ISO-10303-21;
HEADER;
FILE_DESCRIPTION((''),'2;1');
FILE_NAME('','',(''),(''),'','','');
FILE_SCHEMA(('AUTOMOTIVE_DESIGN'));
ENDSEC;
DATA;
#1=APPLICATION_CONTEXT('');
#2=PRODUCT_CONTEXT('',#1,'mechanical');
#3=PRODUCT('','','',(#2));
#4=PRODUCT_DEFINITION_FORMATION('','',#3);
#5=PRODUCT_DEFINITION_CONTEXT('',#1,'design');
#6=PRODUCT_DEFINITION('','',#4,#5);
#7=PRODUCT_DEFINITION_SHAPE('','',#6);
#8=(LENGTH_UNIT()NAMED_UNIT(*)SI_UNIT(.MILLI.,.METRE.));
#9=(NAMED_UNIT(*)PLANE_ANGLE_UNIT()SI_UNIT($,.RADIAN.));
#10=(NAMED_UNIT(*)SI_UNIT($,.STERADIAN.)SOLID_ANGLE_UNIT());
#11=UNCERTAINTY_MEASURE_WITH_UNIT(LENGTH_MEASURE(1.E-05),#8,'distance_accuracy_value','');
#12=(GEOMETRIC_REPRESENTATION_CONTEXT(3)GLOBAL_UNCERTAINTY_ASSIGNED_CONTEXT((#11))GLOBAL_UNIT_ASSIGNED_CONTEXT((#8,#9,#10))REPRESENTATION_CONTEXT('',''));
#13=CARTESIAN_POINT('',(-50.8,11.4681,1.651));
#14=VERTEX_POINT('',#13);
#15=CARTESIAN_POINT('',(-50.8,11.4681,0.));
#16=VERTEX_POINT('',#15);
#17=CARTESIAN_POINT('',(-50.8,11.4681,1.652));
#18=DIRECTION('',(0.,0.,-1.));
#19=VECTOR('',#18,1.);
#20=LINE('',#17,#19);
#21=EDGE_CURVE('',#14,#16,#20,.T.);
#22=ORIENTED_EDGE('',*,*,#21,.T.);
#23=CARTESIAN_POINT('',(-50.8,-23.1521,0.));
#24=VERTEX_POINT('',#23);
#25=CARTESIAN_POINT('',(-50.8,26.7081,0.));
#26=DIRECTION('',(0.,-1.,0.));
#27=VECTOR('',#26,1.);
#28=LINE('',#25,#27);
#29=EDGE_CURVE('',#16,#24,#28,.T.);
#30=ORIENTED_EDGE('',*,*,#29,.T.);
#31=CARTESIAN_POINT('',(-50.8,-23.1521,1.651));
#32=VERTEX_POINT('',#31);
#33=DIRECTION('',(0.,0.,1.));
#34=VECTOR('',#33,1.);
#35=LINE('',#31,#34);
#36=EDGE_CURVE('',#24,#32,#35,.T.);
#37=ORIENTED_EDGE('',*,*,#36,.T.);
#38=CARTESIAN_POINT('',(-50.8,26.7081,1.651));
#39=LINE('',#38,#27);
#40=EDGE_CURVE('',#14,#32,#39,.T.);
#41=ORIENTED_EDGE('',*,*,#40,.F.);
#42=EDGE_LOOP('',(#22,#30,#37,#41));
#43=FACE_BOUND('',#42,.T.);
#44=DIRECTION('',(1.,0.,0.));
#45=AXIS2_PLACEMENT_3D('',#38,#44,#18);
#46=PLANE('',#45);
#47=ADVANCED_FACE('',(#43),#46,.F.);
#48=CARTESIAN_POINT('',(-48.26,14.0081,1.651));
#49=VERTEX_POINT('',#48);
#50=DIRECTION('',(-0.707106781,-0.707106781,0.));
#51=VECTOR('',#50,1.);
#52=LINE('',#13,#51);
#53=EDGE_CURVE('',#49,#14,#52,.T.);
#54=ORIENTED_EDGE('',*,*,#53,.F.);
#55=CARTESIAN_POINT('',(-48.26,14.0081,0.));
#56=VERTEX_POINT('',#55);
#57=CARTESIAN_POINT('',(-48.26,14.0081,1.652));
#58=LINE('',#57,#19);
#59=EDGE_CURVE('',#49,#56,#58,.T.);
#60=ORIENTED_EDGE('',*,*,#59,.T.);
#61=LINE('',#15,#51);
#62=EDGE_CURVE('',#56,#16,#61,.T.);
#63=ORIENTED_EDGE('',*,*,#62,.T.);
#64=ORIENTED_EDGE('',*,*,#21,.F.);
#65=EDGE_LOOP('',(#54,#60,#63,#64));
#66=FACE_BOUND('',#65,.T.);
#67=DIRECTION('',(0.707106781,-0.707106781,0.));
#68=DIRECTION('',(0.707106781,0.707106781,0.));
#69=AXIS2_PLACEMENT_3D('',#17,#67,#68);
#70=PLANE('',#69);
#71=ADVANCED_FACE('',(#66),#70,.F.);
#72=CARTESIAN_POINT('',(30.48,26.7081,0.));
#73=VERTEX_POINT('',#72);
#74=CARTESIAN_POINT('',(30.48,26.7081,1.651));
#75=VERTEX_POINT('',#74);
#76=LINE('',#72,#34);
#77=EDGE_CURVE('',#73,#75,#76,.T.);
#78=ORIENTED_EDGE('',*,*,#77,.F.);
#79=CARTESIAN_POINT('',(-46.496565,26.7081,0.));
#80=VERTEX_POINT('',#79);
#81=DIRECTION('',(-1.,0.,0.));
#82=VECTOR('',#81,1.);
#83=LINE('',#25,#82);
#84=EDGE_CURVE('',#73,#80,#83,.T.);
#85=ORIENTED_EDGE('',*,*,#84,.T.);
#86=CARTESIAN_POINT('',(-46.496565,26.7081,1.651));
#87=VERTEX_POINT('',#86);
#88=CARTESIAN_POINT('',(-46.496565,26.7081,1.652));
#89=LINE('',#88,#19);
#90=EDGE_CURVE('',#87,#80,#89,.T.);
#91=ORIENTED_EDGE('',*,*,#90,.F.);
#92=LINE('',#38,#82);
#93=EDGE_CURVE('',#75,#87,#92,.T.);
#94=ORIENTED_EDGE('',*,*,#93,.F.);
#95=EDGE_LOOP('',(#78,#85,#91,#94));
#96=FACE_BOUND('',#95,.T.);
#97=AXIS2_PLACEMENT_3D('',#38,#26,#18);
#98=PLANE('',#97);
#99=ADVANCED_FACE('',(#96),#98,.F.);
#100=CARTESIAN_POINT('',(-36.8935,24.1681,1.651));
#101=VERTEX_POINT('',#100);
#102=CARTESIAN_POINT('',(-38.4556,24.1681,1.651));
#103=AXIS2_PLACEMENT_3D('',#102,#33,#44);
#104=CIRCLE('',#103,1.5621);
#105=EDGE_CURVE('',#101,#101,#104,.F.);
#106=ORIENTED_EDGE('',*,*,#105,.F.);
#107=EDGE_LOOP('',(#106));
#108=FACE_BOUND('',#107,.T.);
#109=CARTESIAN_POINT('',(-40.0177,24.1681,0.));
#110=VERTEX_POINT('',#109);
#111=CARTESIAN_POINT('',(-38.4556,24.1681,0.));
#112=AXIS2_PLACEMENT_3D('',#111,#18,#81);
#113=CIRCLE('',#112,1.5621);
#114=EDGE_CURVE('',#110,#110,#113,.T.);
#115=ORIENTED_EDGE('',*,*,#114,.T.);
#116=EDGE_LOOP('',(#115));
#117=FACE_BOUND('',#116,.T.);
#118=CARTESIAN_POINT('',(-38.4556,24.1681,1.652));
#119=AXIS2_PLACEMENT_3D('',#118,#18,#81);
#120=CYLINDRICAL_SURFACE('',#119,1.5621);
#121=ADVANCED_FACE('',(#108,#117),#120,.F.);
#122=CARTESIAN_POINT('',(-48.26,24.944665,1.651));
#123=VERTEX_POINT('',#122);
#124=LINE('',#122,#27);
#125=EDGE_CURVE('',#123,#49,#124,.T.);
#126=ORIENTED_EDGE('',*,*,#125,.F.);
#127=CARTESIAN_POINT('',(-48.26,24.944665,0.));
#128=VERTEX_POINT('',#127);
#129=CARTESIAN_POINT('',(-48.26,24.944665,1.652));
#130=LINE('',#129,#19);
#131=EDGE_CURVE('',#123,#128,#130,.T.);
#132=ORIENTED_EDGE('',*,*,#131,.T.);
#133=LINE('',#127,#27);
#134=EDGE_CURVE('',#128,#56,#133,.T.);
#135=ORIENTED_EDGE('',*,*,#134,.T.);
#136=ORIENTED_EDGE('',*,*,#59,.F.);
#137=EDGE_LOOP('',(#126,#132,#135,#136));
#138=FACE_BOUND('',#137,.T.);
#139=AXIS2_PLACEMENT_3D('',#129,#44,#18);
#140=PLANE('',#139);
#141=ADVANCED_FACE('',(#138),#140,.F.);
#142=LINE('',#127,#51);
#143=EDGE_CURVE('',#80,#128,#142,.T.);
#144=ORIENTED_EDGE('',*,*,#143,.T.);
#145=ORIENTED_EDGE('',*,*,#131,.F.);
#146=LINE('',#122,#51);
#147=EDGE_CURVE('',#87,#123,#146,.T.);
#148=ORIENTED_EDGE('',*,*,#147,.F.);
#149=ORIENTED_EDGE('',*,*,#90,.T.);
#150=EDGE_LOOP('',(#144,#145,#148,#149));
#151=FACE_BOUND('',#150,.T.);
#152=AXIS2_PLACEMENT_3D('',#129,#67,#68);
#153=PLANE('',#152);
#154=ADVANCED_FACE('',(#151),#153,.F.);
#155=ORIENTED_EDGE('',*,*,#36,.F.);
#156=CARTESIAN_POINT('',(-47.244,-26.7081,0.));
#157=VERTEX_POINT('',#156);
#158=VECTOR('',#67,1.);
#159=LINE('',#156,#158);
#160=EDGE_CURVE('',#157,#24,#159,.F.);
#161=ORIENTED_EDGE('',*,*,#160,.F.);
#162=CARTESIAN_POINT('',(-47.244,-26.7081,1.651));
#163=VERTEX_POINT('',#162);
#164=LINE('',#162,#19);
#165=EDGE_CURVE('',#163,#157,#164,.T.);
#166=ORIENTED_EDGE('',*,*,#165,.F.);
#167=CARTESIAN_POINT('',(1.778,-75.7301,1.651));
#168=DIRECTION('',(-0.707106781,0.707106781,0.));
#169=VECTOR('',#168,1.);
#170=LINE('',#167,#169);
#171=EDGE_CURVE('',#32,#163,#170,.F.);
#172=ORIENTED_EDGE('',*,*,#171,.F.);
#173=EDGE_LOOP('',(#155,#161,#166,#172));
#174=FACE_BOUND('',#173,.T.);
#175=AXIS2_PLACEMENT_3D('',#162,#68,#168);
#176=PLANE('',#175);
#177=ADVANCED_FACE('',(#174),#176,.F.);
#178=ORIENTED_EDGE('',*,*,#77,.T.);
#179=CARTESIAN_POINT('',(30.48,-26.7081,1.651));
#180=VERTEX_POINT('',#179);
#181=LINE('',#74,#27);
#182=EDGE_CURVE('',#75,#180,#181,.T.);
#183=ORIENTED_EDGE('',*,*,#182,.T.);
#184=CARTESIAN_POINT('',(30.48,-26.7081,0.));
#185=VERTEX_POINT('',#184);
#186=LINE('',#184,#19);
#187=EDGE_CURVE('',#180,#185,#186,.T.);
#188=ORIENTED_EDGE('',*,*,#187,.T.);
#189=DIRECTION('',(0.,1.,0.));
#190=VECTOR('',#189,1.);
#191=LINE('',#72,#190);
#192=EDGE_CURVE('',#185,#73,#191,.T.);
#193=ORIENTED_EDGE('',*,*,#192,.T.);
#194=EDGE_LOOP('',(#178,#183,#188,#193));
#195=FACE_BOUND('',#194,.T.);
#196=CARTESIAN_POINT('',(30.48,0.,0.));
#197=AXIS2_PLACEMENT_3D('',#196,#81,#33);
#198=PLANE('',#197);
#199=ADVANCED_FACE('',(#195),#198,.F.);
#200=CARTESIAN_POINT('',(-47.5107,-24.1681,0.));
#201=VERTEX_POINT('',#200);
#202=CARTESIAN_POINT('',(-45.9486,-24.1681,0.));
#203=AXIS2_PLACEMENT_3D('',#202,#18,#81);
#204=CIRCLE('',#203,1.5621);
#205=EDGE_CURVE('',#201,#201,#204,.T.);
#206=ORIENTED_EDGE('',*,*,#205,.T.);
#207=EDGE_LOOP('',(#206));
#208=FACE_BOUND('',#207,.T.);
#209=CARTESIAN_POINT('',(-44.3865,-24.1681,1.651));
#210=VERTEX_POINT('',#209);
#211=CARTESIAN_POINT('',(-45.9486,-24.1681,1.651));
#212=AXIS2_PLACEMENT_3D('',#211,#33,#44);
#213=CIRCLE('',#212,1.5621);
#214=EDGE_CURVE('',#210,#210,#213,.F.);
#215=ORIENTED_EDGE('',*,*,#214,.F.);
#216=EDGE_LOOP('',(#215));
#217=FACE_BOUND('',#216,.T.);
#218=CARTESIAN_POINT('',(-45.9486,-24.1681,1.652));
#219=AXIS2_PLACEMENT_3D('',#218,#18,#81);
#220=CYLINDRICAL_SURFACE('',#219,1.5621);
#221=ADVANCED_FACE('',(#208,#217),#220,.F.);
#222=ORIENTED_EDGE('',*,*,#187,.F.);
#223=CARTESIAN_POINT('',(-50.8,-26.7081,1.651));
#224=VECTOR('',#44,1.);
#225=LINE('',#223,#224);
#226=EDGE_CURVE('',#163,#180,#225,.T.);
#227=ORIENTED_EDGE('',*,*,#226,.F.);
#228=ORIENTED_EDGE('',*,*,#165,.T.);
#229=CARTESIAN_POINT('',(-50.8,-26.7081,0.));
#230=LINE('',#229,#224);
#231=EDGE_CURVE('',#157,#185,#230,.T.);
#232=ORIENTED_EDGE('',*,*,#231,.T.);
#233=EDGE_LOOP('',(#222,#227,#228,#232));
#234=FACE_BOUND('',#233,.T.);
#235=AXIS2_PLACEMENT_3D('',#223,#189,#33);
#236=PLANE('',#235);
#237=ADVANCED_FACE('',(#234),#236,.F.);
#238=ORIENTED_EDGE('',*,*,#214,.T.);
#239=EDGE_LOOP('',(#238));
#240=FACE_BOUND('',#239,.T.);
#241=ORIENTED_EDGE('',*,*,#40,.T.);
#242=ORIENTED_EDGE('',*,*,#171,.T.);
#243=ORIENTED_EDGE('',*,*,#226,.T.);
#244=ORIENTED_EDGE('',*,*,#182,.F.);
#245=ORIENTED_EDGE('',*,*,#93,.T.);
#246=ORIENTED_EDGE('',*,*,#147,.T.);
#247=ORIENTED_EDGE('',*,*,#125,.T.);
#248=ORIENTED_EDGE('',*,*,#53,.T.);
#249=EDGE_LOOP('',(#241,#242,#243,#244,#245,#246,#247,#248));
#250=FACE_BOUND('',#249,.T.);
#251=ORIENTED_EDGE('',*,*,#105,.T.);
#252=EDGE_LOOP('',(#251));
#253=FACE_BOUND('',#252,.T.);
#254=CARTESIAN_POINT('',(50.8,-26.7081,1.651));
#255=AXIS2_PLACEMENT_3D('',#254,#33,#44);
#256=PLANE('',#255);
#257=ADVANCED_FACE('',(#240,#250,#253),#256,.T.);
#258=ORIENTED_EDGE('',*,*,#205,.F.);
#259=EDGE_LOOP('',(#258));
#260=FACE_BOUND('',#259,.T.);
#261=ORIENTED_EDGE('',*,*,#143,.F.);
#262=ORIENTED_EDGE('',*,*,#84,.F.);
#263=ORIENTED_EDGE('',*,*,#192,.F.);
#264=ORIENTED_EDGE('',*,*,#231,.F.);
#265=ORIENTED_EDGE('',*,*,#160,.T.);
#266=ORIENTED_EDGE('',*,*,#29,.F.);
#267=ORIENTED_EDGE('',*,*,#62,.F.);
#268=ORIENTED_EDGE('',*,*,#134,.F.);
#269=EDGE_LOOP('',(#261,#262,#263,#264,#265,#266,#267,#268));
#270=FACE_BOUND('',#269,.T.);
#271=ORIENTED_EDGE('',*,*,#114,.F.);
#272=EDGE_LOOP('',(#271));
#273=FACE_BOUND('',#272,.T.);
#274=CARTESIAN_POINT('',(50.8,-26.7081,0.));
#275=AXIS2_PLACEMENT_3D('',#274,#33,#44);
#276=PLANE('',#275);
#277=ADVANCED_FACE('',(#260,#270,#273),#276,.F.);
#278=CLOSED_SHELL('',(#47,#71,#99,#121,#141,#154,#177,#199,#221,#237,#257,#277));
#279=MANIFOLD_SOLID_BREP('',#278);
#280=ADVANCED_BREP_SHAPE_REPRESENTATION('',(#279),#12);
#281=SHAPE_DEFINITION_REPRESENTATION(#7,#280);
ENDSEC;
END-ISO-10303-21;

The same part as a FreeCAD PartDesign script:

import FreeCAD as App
import Part
import Sketcher
Q = App.Units.Quantity


def edges_at(feature, points):
    """Names of the edges that pass closest to the given points."""
    edges = feature.Shape.Edges
    near = lambda p: min(range(len(edges)), key=lambda i: edges[i].distToShape(Part.Vertex(*p))[0])
    return sorted({f"Edge{near(p) + 1}" for p in points})

doc = App.newDocument("Part")
params = doc.addObject("Spreadsheet::Sheet", "Params")
for row, (alias, value) in enumerate([
    ("sketch1_width", "4 in"),
    ("sketch1_height", "2.103 in"),
    ("pad1_length", "0.065 in"),
    ("chamfer_size", "0.14 in"),
    ("sketch2_height", "0.6 in"),
    ("sketch3_diameter", "0.123 in"),
    ("sketch4_diameter", "0.123 in"),
    ("sketch5_width", "2.103 in"),
    ("sketch5_height", "0.065 in"),
    ("pocket4_length", "0.8 in"),
], start=1):
    params.set(f"A{row}", alias)
    params.set(f"B{row}", "=" + value)
    params.setAlias(f"B{row}", alias)

body = doc.addObject("PartDesign::Body", "Body")

# Sketch on XY plane
sketch1 = body.newObject("Sketcher::SketchObject", "Sketch")
sketch1.AttachmentSupport = (doc.getObject("XY_Plane"), [""])
sketch1.MapMode = "FlatFace"
sketch1.addGeometry([
    Part.LineSegment(App.Vector(-51, 27, 0), App.Vector(-51, -27, 0)),
    Part.LineSegment(App.Vector(-51, -27, 0), App.Vector(51, -27, 0)),
    Part.LineSegment(App.Vector(51, -27, 0), App.Vector(51, 27, 0)),
    Part.LineSegment(App.Vector(51, 27, 0), App.Vector(-51, 27, 0)),
], False)
sketch1.addConstraint([
    Sketcher.Constraint("Coincident", 0, 2, 1, 1),
    Sketcher.Constraint("Coincident", 1, 2, 2, 1),
    Sketcher.Constraint("Coincident", 2, 2, 3, 1),
    Sketcher.Constraint("Coincident", 3, 2, 0, 1),
    Sketcher.Constraint("Vertical", 0),
    Sketcher.Constraint("Horizontal", 1),
    Sketcher.Constraint("Vertical", 2),
    Sketcher.Constraint("Horizontal", 3),
    Sketcher.Constraint("Symmetric", 0, 2, 2, 2, -1, 1),
    Sketcher.Constraint("DistanceX", 1, 1, 1, 2, Q("4 in")),
    Sketcher.Constraint("DistanceY", 0, 2, 0, 1, Q("2.103 in")),
])
sketch1.setExpression("Constraints[9]", "Params.sketch1_width")
sketch1.setExpression("Constraints[10]", "Params.sketch1_height")
pad1 = body.newObject("PartDesign::Pad", "Pad")
pad1.Profile = sketch1
pad1.setExpression("Length", "Params.pad1_length")
doc.recompute()

chamfer = body.newObject("PartDesign::Chamfer", "Chamfer")
chamfer.Base = (pad1, edges_at(pad1, [(-50.8, -26.708, 0.826)]))
chamfer.setExpression("Size", "Params.chamfer_size")

# Sketch on XY plane
sketch2 = body.newObject("Sketcher::SketchObject", "Sketch001")
sketch2.AttachmentSupport = (doc.getObject("XY_Plane"), [""])
sketch2.MapMode = "FlatFace"
sketch2.addGeometry([
    Part.LineSegment(App.Vector(-48.3, 24.9, 0), App.Vector(-48.3, 14, 0)),  # 0
    Part.LineSegment(App.Vector(-48.3, 14, 0), App.Vector(-50.8, 11.5, 0)),  # 1
    Part.LineSegment(App.Vector(-50.8, 11.5, 0), App.Vector(-50.8, 26.7, 0)),  # 2
    Part.LineSegment(App.Vector(-50.8, 26.7, 0), App.Vector(-46.5, 26.7, 0)),  # 3
    Part.LineSegment(App.Vector(-46.5, 26.7, 0), App.Vector(-48.3, 24.9, 0)),  # 4
], False)
sketch2.addConstraint([
    Sketcher.Constraint("Coincident", 0, 2, 1, 1),
    Sketcher.Constraint("Coincident", 1, 2, 2, 1),
    Sketcher.Constraint("Coincident", 2, 2, 3, 1),
    Sketcher.Constraint("Coincident", 3, 2, 4, 1),
    Sketcher.Constraint("Coincident", 4, 2, 0, 1),
    Sketcher.Constraint("Vertical", 0),
    Sketcher.Constraint("Vertical", 2),
    Sketcher.Constraint("Horizontal", 3),
    Sketcher.Constraint("Parallel", 1, 4),
    Sketcher.Constraint("DistanceY", 2, 1, 2, 2, Q("0.6 in")),
    Sketcher.Constraint("DistanceX", 1, 2, -1, 1, Q("2 in")),
    Sketcher.Constraint("Angle", 1, Q("-135 deg")),
    Sketcher.Constraint("DistanceX", 0, 2, -1, 1, Q("1.9 in")),
    Sketcher.Constraint("DistanceY", -1, 1, 0, 2, Q("0.5515 in")),
    Sketcher.Constraint("DistanceX", 3, 1, 3, 2, Q("4.303435 mm")),
])
sketch2.setExpression("Constraints[9]", "Params.sketch2_height")
pocket1 = body.newObject("PartDesign::Pocket", "Pocket")
pocket1.Profile = sketch2
pocket1.Type = "UpToFirst"
pocket1.Reversed = True

# Sketch on XY plane
sketch3 = body.newObject("Sketcher::SketchObject", "Sketch002")
sketch3.AttachmentSupport = (doc.getObject("XY_Plane"), [""])
sketch3.MapMode = "FlatFace"
sketch3.addGeometry(Part.Circle(App.Vector(-38.5, 24.2, 0), App.Vector(0, 0, 1), 1.6), False)
sketch3.addConstraint([
    Sketcher.Constraint("Diameter", 0, Q("0.123 in")),
    Sketcher.Constraint("DistanceX", 0, 3, -1, 1, Q("1.514 in")),
    Sketcher.Constraint("DistanceY", -1, 1, 0, 3, Q("0.9515 in")),
])
sketch3.setExpression("Constraints[0]", "Params.sketch3_diameter")
pocket2 = body.newObject("PartDesign::Pocket", "Pocket001")
pocket2.Profile = sketch3
pocket2.Type = "UpToFirst"
pocket2.Reversed = True

# Sketch on XY plane
sketch4 = body.newObject("Sketcher::SketchObject", "Sketch003")
sketch4.AttachmentSupport = (doc.getObject("XY_Plane"), [""])
sketch4.MapMode = "FlatFace"
sketch4.addGeometry(Part.Circle(App.Vector(-45.9, -24.2, 0), App.Vector(0, 0, 1), 1.6), False)
sketch4.addConstraint([
    Sketcher.Constraint("Diameter", 0, Q("0.123 in")),
    Sketcher.Constraint("DistanceX", 0, 3, -1, 1, Q("1.809 in")),
    Sketcher.Constraint("DistanceY", 0, 3, -1, 1, Q("0.9515 in")),
])
sketch4.setExpression("Constraints[0]", "Params.sketch4_diameter")
pocket3 = body.newObject("PartDesign::Pocket", "Pocket002")
pocket3.Profile = sketch4
pocket3.Type = "UpToFirst"
pocket3.Reversed = True

# Sketch on YZ plane
sketch5 = body.newObject("Sketcher::SketchObject", "Sketch004")
sketch5.AttachmentSupport = (doc.getObject("YZ_Plane"), [""])
sketch5.MapMode = "FlatFace"
sketch5.AttachmentOffset = App.Placement(App.Vector(0, 0, 2 * 25.4), App.Rotation())
sketch5.addGeometry([
    Part.LineSegment(App.Vector(26.7, 1.7, 0), App.Vector(-26.7, 1.7, 0)),
    Part.LineSegment(App.Vector(-26.7, 1.7, 0), App.Vector(-26.7, 0, 0)),
    Part.LineSegment(App.Vector(-26.7, 0, 0), App.Vector(26.7, 0, 0)),
    Part.LineSegment(App.Vector(26.7, 0, 0), App.Vector(26.7, 1.7, 0)),
], False)
sketch5.addConstraint([
    Sketcher.Constraint("Coincident", 0, 2, 1, 1),
    Sketcher.Constraint("Coincident", 1, 2, 2, 1),
    Sketcher.Constraint("Coincident", 2, 2, 3, 1),
    Sketcher.Constraint("Coincident", 3, 2, 0, 1),
    Sketcher.Constraint("Horizontal", 0),
    Sketcher.Constraint("Vertical", 1),
    Sketcher.Constraint("Horizontal", 2),
    Sketcher.Constraint("Vertical", 3),
    Sketcher.Constraint("Symmetric", 1, 2, 2, 2, -1, 1),
    Sketcher.Constraint("DistanceX", 0, 2, 0, 1, Q("2.103 in")),
    Sketcher.Constraint("DistanceY", 1, 2, 1, 1, Q("0.065 in")),
])
sketch5.setExpression("Constraints[9]", "Params.sketch5_width")
sketch5.setExpression("Constraints[10]", "Params.sketch5_height")
pocket4 = body.newObject("PartDesign::Pocket", "Pocket003")
pocket4.Profile = sketch5
pocket4.setExpression("Length", "Params.pocket4_length")

doc.recompute()
